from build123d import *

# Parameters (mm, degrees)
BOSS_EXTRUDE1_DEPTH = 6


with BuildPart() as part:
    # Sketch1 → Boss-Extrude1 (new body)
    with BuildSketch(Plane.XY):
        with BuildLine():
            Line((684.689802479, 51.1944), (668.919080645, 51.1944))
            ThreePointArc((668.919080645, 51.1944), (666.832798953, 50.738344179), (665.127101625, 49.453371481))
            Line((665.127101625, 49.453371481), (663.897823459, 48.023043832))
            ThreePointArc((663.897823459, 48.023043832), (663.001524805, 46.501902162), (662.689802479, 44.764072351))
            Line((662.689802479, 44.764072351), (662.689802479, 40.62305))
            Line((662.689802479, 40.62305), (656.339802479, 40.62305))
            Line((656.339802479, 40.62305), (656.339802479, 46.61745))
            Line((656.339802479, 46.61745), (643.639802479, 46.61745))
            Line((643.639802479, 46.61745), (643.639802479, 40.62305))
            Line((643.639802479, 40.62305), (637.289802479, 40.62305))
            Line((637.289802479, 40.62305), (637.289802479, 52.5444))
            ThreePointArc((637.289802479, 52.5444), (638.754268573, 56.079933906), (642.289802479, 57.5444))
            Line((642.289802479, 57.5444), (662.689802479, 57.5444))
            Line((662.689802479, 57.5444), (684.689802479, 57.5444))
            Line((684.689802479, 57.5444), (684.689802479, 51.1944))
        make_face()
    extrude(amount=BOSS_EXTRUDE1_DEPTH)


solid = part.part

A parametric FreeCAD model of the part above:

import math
import FreeCAD as App
import Part
import Sketcher

V = App.Vector
Q = App.Units.Quantity

doc = App.newDocument("Part")
body = doc.addObject("PartDesign::Body", "Body")

# Sketch on XY plane
sketch1 = body.newObject("Sketcher::SketchObject", "Sketch")
sketch1.AttachmentSupport = (doc.getObject("XY_Plane"), [""])
sketch1.MapMode = "FlatFace"
sketch1.addGeometry([
    Part.LineSegment(V(668.9, 51.2, 0), V(684.7, 51.2, 0)),  # 0
    Part.LineSegment(V(684.7, 51.2, 0), V(684.7, 57.5, 0)),  # 1
    Part.LineSegment(V(684.7, 57.5, 0), V(642.3, 57.5, 0)),  # 2
    Part.ArcOfCircle(Part.Circle(V(642.3, 52.5, 0), V(0, 0, 1), 5), math.radians(90), math.radians(180)),  # 3
    Part.LineSegment(V(637.3, 52.5, 0), V(637.3, 40.6, 0)),  # 4
    Part.LineSegment(V(637.3, 40.6, 0), V(643.6, 40.6, 0)),  # 5
    Part.LineSegment(V(643.6, 40.6, 0), V(643.6, 46.6, 0)),  # 6
    Part.LineSegment(V(643.6, 46.6, 0), V(656.3, 46.6, 0)),  # 7
    Part.LineSegment(V(656.3, 46.6, 0), V(656.3, 40.6, 0)),  # 8
    Part.LineSegment(V(656.3, 40.6, 0), V(662.7, 40.6, 0)),  # 9
    Part.LineSegment(V(662.7, 40.6, 0), V(662.7, 44.8, 0)),  # 10
    Part.ArcOfCircle(Part.Circle(V(667.7, 44.8, 0), V(0, 0, 1), 5), math.radians(139), math.radians(180)),  # 11
    Part.LineSegment(V(663.9, 48, 0), V(665.1, 49.5, 0)),  # 12
    Part.ArcOfCircle(Part.Circle(V(668.9, 46.2, 0), V(0, 0, 1), 5), math.radians(90), math.radians(139)),  # 13
], False)
sketch1.addConstraint([
    Sketcher.Constraint("Coincident", 0, 2, 1, 1),
    Sketcher.Constraint("Coincident", 1, 2, 2, 1),
    Sketcher.Constraint("Tangent", 2, 2, 3, 1),
    Sketcher.Constraint("Tangent", 3, 2, 4, 1),
    Sketcher.Constraint("Coincident", 4, 2, 5, 1),
    Sketcher.Constraint("Coincident", 5, 2, 6, 1),
    Sketcher.Constraint("Coincident", 6, 2, 7, 1),
    Sketcher.Constraint("Coincident", 7, 2, 8, 1),
    Sketcher.Constraint("Coincident", 8, 2, 9, 1),
    Sketcher.Constraint("Coincident", 9, 2, 10, 1),
    Sketcher.Constraint("Tangent", 10, 2, 11, 2),
    Sketcher.Constraint("Tangent", 11, 1, 12, 1),
    Sketcher.Constraint("Tangent", 12, 2, 13, 2),
    Sketcher.Constraint("Tangent", 13, 1, 0, 1),
    Sketcher.Constraint("Horizontal", 0),
    Sketcher.Constraint("Vertical", 1),
    Sketcher.Constraint("Horizontal", 2),
    Sketcher.Constraint("Vertical", 4),
    Sketcher.Constraint("Horizontal", 5),
    Sketcher.Constraint("Vertical", 6),
    Sketcher.Constraint("Horizontal", 7),
    Sketcher.Constraint("Vertical", 8),
    Sketcher.Constraint("Horizontal", 9),
    Sketcher.Constraint("Vertical", 10),
    Sketcher.Constraint("Equal", 3, 11),
    Sketcher.Constraint("Equal", 11, 13),
    Sketcher.Constraint("Horizontal", 5, 2, 8, 2),
    Sketcher.Constraint("Equal", 5, 9),
    Sketcher.Constraint("Equal", 9, 1),
    Sketcher.Constraint("Radius", 3, Q("5 mm")),
    Sketcher.Constraint("DistanceX", 2, 2, 2, 1, Q("42.4 mm")),
    Sketcher.Constraint("DistanceX", 7, 1, 7, 2, Q("12.7 mm")),
    Sketcher.Constraint("DistanceX", 11, 3, 0, 2, Q("17 mm")),
    Sketcher.Constraint("DistanceY", 6, 1, 6, 2, Q("5.9944 mm")),
    Sketcher.Constraint("DistanceX", 0, 1, 0, 2, Q("15.770722 mm")),
    Sketcher.Constraint("DistanceY", 4, 2, 4, 1, Q("11.92135 mm")),
    Sketcher.Constraint("DistanceY", -1, 1, 3, 3, Q("52.5444 mm")),
    Sketcher.Constraint("DistanceX", -1, 1, 12, 2, Q("665.127102 mm")),
    Sketcher.Constraint("DistanceX", 10, 2, 12, 2, Q("2.437299 mm")),
])
pad1 = body.newObject("PartDesign::Pad", "Pad")
pad1.Profile = sketch1
pad1.Length = 6

doc.recompute()
